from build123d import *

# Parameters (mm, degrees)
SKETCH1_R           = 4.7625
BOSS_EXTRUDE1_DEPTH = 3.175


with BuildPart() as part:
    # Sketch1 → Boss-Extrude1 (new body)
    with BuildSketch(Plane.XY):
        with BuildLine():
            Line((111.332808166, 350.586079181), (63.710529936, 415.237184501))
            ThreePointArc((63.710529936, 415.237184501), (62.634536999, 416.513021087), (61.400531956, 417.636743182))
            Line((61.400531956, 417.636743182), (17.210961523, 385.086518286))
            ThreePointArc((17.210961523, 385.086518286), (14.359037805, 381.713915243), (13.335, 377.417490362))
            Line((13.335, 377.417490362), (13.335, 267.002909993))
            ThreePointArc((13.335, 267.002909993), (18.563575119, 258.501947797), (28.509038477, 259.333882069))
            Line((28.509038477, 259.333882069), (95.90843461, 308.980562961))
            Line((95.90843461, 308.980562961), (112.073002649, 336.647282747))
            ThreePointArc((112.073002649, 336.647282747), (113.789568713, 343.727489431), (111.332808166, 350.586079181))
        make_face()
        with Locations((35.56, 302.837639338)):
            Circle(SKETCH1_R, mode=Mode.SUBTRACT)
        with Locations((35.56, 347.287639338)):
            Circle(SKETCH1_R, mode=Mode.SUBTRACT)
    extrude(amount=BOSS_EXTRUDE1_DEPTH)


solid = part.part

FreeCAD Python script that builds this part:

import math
import FreeCAD as App
import Part
import Sketcher
Q = App.Units.Quantity

doc = App.newDocument("Part")
body = doc.addObject("PartDesign::Body", "Body")

# Sketch on XY plane
sketch1 = body.newObject("Sketcher::SketchObject", "Sketch")
sketch1.AttachmentSupport = (doc.getObject("XY_Plane"), [""])
sketch1.MapMode = "FlatFace"
sketch1.addGeometry(Part.LineSegment(App.Vector(111.332808, 350.586079, 0), App.Vector(63.71053, 415.237185, 0)), False)
sketch1.addGeometry(Part.ArcOfCircle(Part.Circle(App.Vector(53.485159, 407.705133, 0), App.Vector(0, 0, 1), 12.7), math.radians(36.375518), math.radians(51.44558)), False)
sketch1.addGeometry(Part.LineSegment(App.Vector(61.400532, 417.636743, 0), App.Vector(17.210962, 385.086518, 0)), False)
sketch1.addGeometry(Part.ArcOfCircle(Part.Circle(App.Vector(22.86, 377.41749, 0), App.Vector(0, 0, 1), 9.525), math.radians(126.375518), math.radians(180)), False)
sketch1.addGeometry(Part.LineSegment(App.Vector(13.335, 377.41749, 0), App.Vector(13.335, 267.00291, 0)), False)
sketch1.addGeometry(Part.ArcOfCircle(Part.Circle(App.Vector(22.86, 267.00291, 0), App.Vector(0, 0, 1), 9.525), math.radians(180), math.radians(306.375518)), False)
sketch1.addGeometry(Part.LineSegment(App.Vector(28.509038, 259.333882, 0), App.Vector(95.908435, 308.980563, 0)), False)
sketch1.addGeometry(Part.LineSegment(App.Vector(95.908435, 308.980563, 0), App.Vector(112.073003, 336.647283, 0)), False)
sketch1.addGeometry(Part.ArcOfCircle(Part.Circle(App.Vector(101.107438, 343.054028, 0), App.Vector(0, 0, 1), 12.7), math.radians(-30.296051), math.radians(36.375518)), False)
sketch1.addGeometry(Part.Circle(App.Vector(35.56, 302.837639, 0), App.Vector(0, 0, 1), 4.7625), False)
sketch1.addGeometry(Part.Circle(App.Vector(35.56, 347.287639, 0), App.Vector(0, 0, 1), 4.7625), False)
sketch1.addConstraint(Sketcher.Constraint("Tangent", 0, 2, 1, 1))
sketch1.addConstraint(Sketcher.Constraint("Coincident", 1, 2, 2, 1))
sketch1.addConstraint(Sketcher.Constraint("Tangent", 2, 2, 3, 1))
sketch1.addConstraint(Sketcher.Constraint("Tangent", 3, 2, 4, 1))
sketch1.addConstraint(Sketcher.Constraint("Tangent", 4, 2, 5, 1))
sketch1.addConstraint(Sketcher.Constraint("Tangent", 5, 2, 6, 1))
sketch1.addConstraint(Sketcher.Constraint("Coincident", 6, 2, 7, 1))
sketch1.addConstraint(Sketcher.Constraint("Tangent", 7, 2, 8, 1))
sketch1.addConstraint(Sketcher.Constraint("Tangent", 8, 2, 0, 1))
sketch1.addConstraint(Sketcher.Constraint("Vertical", 4))
sketch1.addConstraint(Sketcher.Constraint("Equal", 3, 5))
sketch1.addConstraint(Sketcher.Constraint("Equal", 1, 8))
sketch1.addConstraint(Sketcher.Constraint("Equal", 9, 10))
sketch1.addConstraint(Sketcher.Constraint("Perpendicular", 0, 2))
sketch1.addConstraint(Sketcher.Constraint("Parallel", 2, 6))
sketch1.addConstraint(Sketcher.Constraint("Vertical", 9, 3, 10, 3))
sketch1.addConstraint(Sketcher.Constraint("Radius", 1, Q("0.5 in")))
sketch1.addConstraint(Sketcher.Constraint("Diameter", 9, Q("0.375 in")))
sketch1.addConstraint(Sketcher.Constraint("Radius", 3, Q("0.375 in")))
sketch1.addConstraint(Sketcher.Constraint("DistanceX", -1, 1, 3, 3, Q("0.9 in")))
sketch1.addConstraint(Sketcher.Constraint("DistanceX", -1, 1, 9, 3, Q("1.4 in")))
sketch1.addConstraint(Sketcher.Constraint("DistanceY", 9, 3, 10, 3, Q("1.75 in")))
sketch1.addConstraint(Sketcher.Constraint("DistanceY", 4, 2, 4, 1, Q("110.41458 mm")))
sketch1.addConstraint(Sketcher.Constraint("DistanceX", 5, 2, 8, 3, Q("72.598399 mm")))
sketch1.addConstraint(Sketcher.Constraint("Distance", 0, Q("80.29724 mm")))
sketch1.addConstraint(Sketcher.Constraint("Distance", 6, Q("83.710642 mm")))
sketch1.addConstraint(Sketcher.Constraint("DistanceX", -1, 1, 1, 3, Q("53.485159 mm")))
sketch1.addConstraint(Sketcher.Constraint("DistanceY", -1, 1, 3, 3, Q("377.41749 mm")))
sketch1.addConstraint(Sketcher.Constraint("DistanceY", -1, 1, 9, 3, Q("302.837639 mm")))
sketch1.addConstraint(Sketcher.Constraint("DistanceX", -1, 1, 1, 2, Q("61.400532 mm")))
pad1 = body.newObject("PartDesign::Pad", "Pad")
pad1.Profile = sketch1
pad1.Length = Q("0.125 in")

doc.recompute()
